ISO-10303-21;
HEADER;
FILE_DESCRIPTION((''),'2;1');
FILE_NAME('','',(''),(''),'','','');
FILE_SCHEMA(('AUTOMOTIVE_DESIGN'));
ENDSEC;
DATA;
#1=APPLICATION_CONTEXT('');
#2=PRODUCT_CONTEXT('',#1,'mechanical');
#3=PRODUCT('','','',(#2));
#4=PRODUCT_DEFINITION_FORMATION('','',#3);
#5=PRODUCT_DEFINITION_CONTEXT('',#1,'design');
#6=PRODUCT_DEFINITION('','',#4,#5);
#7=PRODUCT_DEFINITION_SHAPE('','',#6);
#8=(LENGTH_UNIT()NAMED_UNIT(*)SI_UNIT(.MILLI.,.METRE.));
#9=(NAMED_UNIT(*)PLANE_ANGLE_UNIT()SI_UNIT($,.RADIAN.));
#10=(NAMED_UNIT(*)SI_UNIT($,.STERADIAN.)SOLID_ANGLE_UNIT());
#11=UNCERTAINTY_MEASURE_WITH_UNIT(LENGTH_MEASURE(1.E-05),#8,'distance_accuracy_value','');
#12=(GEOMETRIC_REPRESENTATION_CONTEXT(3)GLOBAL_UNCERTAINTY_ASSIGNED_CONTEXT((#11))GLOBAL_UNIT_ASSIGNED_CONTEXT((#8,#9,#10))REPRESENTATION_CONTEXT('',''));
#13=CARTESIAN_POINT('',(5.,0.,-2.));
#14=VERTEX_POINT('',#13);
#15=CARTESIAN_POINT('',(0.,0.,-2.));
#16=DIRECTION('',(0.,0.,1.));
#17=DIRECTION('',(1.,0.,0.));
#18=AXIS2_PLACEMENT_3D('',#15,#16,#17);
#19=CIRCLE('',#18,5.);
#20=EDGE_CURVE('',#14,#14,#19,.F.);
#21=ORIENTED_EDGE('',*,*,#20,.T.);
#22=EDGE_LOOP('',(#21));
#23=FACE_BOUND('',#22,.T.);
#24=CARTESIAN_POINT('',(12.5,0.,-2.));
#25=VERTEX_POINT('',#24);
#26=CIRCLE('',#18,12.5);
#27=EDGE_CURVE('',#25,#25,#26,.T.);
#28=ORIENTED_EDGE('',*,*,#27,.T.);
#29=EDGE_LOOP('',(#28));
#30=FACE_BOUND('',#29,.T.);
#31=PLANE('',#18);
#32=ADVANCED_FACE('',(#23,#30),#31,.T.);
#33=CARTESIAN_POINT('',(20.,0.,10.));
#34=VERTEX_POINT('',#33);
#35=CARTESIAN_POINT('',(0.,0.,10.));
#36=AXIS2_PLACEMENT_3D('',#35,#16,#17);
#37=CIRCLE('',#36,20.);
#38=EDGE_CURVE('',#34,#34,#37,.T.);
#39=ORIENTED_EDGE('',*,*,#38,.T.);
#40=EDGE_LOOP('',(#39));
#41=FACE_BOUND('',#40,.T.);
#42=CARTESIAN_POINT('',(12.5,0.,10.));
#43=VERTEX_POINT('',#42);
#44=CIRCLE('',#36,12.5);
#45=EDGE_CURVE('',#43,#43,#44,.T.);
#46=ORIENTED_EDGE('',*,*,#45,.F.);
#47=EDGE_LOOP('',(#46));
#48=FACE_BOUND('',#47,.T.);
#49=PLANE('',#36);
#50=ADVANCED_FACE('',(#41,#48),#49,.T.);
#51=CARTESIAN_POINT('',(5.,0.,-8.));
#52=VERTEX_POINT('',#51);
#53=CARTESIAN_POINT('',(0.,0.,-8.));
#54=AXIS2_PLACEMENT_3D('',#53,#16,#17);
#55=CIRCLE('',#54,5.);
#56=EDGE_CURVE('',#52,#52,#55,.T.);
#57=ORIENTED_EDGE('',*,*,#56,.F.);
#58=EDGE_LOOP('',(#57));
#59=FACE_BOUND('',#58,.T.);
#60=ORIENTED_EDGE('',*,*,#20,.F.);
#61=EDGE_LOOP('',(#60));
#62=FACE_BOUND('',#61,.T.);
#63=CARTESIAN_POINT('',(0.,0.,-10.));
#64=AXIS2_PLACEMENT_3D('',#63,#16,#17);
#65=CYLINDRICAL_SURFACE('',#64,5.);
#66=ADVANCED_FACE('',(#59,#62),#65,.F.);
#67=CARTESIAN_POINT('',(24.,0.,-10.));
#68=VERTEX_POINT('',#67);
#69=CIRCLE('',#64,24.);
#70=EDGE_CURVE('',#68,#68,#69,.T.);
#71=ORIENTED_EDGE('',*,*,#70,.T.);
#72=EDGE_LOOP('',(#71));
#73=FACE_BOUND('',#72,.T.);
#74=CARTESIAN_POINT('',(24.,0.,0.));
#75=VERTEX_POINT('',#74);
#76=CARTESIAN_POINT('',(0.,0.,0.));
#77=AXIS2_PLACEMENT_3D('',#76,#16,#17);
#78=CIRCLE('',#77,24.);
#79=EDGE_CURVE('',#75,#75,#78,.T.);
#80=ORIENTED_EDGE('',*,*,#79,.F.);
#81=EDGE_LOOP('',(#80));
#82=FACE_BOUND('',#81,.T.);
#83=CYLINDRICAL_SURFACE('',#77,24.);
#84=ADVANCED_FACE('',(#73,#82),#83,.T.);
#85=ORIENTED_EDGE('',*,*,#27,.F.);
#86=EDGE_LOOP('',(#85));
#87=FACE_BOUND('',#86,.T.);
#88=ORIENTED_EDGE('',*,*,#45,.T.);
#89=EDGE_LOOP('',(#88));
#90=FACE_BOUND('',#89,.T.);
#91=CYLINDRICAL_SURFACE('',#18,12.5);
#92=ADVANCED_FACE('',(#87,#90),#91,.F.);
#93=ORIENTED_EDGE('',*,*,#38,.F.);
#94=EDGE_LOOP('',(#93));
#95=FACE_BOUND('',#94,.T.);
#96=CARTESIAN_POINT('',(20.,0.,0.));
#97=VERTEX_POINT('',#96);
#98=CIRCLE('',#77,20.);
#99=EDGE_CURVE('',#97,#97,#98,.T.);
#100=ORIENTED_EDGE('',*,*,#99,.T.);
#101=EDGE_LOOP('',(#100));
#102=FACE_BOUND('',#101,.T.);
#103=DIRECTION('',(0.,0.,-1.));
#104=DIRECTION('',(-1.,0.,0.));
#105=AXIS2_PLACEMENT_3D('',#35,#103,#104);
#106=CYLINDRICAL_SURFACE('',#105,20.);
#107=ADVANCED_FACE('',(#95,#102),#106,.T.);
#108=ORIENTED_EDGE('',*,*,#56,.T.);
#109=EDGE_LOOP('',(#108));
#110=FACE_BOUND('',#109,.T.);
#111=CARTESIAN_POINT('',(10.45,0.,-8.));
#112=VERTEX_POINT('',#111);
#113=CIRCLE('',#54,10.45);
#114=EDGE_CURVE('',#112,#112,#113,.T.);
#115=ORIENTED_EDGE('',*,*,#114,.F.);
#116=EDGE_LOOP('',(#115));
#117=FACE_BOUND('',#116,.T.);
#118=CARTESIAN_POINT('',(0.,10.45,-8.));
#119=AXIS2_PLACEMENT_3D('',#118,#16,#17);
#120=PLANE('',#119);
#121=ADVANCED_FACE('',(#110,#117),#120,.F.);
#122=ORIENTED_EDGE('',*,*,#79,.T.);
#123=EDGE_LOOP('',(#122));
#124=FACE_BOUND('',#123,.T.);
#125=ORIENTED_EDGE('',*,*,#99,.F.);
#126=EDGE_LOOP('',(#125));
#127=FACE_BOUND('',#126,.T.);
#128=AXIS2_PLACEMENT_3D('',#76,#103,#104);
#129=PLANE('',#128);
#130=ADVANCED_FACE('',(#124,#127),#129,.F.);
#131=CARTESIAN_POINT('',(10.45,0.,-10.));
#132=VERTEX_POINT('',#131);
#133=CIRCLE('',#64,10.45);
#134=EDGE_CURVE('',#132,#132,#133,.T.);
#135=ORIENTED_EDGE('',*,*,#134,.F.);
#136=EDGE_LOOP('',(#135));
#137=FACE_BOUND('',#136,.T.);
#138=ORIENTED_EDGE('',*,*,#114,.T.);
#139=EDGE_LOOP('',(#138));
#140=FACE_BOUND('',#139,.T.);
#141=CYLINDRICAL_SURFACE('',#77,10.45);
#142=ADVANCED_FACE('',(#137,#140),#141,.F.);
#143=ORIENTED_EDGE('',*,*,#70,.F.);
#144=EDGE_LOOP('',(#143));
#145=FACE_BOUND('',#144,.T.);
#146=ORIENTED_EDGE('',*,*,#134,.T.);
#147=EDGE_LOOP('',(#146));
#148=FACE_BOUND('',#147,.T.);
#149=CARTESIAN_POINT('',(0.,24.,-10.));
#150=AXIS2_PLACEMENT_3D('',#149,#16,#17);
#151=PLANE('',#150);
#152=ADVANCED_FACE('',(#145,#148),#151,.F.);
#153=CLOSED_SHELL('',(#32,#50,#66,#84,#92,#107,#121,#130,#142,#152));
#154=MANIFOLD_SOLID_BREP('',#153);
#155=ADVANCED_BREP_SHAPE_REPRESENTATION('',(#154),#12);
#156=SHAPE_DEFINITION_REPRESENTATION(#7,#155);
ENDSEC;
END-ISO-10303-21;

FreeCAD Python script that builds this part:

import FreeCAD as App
import Part
import Sketcher
from FreeCAD import Vector
Q = App.Units.Quantity

doc = App.newDocument("Part")
body = doc.addObject("PartDesign::Body", "Body")

# Sketch on YZ plane
sketch1 = body.newObject("Sketcher::SketchObject", "Sketch")
sketch1.AttachmentSupport = (doc.getObject("YZ_Plane"), [""])
sketch1.MapMode = "FlatFace"
sketch1.addGeometry([
    Part.LineSegment(Vector(24, 0, 0), Vector(0, 0, 0)),  # 0
    Part.LineSegment(Vector(0, 0, 0), Vector(0, -8, 0)),  # 1
    Part.LineSegment(Vector(0, -8, 0), Vector(10.4, -8, 0)),  # 2
    Part.LineSegment(Vector(10.4, -8, 0), Vector(10.4, -10, 0)),  # 3
    Part.LineSegment(Vector(10.4, -10, 0), Vector(24, -10, 0)),  # 4
    Part.LineSegment(Vector(24, -10, 0), Vector(24, 0, 0)),  # 5
], False)
sketch1.addConstraint([
    Sketcher.Constraint("Coincident", 0, 2, 1, 1),
    Sketcher.Constraint("Coincident", 1, 2, 2, 1),
    Sketcher.Constraint("Coincident", 2, 2, 3, 1),
    Sketcher.Constraint("Coincident", 3, 2, 4, 1),
    Sketcher.Constraint("Coincident", 4, 2, 5, 1),
    Sketcher.Constraint("Coincident", 5, 2, 0, 1),
    Sketcher.Constraint("Horizontal", 0),
    Sketcher.Constraint("Vertical", 1),
    Sketcher.Constraint("Horizontal", 2),
    Sketcher.Constraint("Vertical", 3),
    Sketcher.Constraint("Horizontal", 4),
    Sketcher.Constraint("Vertical", 5),
    Sketcher.Constraint("Coincident", 0, 2, -1, 1),
    Sketcher.Constraint("DistanceX", 0, 2, 0, 1, Q("24 mm")),
    Sketcher.Constraint("DistanceY", 1, 2, 1, 1, Q("8 mm")),
    Sketcher.Constraint("DistanceY", 3, 2, 3, 1, Q("2 mm")),
    Sketcher.Constraint("DistanceX", 2, 1, 2, 2, Q("10.45 mm")),
])
revolution = body.newObject("PartDesign::Revolution", "Revolution")
revolution.Profile = sketch1
revolution.ReferenceAxis = (sketch1, ["V_Axis"])
revolution.Angle = 360

# Sketch on XY plane
sketch2 = body.newObject("Sketcher::SketchObject", "Sketch001")
sketch2.AttachmentSupport = (doc.getObject("XY_Plane"), [""])
sketch2.MapMode = "FlatFace"
sketch2.addGeometry(Part.Circle(Vector(0, 0, 0), Vector(0, 0, 1), 20), False)
sketch2.addConstraint([
    Sketcher.Constraint("Coincident", 0, 3, -1, 1),
    Sketcher.Constraint("Diameter", 0, Q("40 mm")),
])
pad1 = body.newObject("PartDesign::Pad", "Pad")
pad1.Profile = sketch2
pad1.Length = 10

# Sketch on XY plane
sketch3 = body.newObject("Sketcher::SketchObject", "Sketch002")
sketch3.AttachmentSupport = (doc.getObject("XY_Plane"), [""])
sketch3.MapMode = "FlatFace"
sketch3.AttachmentOffset = App.Placement(Vector(0, 0, 10), App.Rotation())
sketch3.addGeometry(Part.Circle(Vector(0, 0, 0), Vector(0, 0, 1), 5), False)
sketch3.addConstraint([
    Sketcher.Constraint("Coincident", 0, 3, -1, 1),
    Sketcher.Constraint("Diameter", 0, Q("10 mm")),
])
pocket1 = body.newObject("PartDesign::Pocket", "Pocket")
pocket1.Profile = sketch3
pocket1.Type = "ThroughAll"

# Sketch on XY plane
sketch4 = body.newObject("Sketcher::SketchObject", "Sketch003")
sketch4.AttachmentSupport = (doc.getObject("XY_Plane"), [""])
sketch4.MapMode = "FlatFace"
sketch4.AttachmentOffset = App.Placement(Vector(0, 0, 10), App.Rotation())
sketch4.addGeometry(Part.Circle(Vector(0, 0, 0), Vector(0, 0, 1), 12), False)
sketch4.addConstraint([
    Sketcher.Constraint("Coincident", 0, 3, -1, 1),
    Sketcher.Constraint("Diameter", 0, Q("25 mm")),
])
pocket2 = body.newObject("PartDesign::Pocket", "Pocket001")
pocket2.Profile = sketch4
pocket2.Length = 12

doc.recompute()
